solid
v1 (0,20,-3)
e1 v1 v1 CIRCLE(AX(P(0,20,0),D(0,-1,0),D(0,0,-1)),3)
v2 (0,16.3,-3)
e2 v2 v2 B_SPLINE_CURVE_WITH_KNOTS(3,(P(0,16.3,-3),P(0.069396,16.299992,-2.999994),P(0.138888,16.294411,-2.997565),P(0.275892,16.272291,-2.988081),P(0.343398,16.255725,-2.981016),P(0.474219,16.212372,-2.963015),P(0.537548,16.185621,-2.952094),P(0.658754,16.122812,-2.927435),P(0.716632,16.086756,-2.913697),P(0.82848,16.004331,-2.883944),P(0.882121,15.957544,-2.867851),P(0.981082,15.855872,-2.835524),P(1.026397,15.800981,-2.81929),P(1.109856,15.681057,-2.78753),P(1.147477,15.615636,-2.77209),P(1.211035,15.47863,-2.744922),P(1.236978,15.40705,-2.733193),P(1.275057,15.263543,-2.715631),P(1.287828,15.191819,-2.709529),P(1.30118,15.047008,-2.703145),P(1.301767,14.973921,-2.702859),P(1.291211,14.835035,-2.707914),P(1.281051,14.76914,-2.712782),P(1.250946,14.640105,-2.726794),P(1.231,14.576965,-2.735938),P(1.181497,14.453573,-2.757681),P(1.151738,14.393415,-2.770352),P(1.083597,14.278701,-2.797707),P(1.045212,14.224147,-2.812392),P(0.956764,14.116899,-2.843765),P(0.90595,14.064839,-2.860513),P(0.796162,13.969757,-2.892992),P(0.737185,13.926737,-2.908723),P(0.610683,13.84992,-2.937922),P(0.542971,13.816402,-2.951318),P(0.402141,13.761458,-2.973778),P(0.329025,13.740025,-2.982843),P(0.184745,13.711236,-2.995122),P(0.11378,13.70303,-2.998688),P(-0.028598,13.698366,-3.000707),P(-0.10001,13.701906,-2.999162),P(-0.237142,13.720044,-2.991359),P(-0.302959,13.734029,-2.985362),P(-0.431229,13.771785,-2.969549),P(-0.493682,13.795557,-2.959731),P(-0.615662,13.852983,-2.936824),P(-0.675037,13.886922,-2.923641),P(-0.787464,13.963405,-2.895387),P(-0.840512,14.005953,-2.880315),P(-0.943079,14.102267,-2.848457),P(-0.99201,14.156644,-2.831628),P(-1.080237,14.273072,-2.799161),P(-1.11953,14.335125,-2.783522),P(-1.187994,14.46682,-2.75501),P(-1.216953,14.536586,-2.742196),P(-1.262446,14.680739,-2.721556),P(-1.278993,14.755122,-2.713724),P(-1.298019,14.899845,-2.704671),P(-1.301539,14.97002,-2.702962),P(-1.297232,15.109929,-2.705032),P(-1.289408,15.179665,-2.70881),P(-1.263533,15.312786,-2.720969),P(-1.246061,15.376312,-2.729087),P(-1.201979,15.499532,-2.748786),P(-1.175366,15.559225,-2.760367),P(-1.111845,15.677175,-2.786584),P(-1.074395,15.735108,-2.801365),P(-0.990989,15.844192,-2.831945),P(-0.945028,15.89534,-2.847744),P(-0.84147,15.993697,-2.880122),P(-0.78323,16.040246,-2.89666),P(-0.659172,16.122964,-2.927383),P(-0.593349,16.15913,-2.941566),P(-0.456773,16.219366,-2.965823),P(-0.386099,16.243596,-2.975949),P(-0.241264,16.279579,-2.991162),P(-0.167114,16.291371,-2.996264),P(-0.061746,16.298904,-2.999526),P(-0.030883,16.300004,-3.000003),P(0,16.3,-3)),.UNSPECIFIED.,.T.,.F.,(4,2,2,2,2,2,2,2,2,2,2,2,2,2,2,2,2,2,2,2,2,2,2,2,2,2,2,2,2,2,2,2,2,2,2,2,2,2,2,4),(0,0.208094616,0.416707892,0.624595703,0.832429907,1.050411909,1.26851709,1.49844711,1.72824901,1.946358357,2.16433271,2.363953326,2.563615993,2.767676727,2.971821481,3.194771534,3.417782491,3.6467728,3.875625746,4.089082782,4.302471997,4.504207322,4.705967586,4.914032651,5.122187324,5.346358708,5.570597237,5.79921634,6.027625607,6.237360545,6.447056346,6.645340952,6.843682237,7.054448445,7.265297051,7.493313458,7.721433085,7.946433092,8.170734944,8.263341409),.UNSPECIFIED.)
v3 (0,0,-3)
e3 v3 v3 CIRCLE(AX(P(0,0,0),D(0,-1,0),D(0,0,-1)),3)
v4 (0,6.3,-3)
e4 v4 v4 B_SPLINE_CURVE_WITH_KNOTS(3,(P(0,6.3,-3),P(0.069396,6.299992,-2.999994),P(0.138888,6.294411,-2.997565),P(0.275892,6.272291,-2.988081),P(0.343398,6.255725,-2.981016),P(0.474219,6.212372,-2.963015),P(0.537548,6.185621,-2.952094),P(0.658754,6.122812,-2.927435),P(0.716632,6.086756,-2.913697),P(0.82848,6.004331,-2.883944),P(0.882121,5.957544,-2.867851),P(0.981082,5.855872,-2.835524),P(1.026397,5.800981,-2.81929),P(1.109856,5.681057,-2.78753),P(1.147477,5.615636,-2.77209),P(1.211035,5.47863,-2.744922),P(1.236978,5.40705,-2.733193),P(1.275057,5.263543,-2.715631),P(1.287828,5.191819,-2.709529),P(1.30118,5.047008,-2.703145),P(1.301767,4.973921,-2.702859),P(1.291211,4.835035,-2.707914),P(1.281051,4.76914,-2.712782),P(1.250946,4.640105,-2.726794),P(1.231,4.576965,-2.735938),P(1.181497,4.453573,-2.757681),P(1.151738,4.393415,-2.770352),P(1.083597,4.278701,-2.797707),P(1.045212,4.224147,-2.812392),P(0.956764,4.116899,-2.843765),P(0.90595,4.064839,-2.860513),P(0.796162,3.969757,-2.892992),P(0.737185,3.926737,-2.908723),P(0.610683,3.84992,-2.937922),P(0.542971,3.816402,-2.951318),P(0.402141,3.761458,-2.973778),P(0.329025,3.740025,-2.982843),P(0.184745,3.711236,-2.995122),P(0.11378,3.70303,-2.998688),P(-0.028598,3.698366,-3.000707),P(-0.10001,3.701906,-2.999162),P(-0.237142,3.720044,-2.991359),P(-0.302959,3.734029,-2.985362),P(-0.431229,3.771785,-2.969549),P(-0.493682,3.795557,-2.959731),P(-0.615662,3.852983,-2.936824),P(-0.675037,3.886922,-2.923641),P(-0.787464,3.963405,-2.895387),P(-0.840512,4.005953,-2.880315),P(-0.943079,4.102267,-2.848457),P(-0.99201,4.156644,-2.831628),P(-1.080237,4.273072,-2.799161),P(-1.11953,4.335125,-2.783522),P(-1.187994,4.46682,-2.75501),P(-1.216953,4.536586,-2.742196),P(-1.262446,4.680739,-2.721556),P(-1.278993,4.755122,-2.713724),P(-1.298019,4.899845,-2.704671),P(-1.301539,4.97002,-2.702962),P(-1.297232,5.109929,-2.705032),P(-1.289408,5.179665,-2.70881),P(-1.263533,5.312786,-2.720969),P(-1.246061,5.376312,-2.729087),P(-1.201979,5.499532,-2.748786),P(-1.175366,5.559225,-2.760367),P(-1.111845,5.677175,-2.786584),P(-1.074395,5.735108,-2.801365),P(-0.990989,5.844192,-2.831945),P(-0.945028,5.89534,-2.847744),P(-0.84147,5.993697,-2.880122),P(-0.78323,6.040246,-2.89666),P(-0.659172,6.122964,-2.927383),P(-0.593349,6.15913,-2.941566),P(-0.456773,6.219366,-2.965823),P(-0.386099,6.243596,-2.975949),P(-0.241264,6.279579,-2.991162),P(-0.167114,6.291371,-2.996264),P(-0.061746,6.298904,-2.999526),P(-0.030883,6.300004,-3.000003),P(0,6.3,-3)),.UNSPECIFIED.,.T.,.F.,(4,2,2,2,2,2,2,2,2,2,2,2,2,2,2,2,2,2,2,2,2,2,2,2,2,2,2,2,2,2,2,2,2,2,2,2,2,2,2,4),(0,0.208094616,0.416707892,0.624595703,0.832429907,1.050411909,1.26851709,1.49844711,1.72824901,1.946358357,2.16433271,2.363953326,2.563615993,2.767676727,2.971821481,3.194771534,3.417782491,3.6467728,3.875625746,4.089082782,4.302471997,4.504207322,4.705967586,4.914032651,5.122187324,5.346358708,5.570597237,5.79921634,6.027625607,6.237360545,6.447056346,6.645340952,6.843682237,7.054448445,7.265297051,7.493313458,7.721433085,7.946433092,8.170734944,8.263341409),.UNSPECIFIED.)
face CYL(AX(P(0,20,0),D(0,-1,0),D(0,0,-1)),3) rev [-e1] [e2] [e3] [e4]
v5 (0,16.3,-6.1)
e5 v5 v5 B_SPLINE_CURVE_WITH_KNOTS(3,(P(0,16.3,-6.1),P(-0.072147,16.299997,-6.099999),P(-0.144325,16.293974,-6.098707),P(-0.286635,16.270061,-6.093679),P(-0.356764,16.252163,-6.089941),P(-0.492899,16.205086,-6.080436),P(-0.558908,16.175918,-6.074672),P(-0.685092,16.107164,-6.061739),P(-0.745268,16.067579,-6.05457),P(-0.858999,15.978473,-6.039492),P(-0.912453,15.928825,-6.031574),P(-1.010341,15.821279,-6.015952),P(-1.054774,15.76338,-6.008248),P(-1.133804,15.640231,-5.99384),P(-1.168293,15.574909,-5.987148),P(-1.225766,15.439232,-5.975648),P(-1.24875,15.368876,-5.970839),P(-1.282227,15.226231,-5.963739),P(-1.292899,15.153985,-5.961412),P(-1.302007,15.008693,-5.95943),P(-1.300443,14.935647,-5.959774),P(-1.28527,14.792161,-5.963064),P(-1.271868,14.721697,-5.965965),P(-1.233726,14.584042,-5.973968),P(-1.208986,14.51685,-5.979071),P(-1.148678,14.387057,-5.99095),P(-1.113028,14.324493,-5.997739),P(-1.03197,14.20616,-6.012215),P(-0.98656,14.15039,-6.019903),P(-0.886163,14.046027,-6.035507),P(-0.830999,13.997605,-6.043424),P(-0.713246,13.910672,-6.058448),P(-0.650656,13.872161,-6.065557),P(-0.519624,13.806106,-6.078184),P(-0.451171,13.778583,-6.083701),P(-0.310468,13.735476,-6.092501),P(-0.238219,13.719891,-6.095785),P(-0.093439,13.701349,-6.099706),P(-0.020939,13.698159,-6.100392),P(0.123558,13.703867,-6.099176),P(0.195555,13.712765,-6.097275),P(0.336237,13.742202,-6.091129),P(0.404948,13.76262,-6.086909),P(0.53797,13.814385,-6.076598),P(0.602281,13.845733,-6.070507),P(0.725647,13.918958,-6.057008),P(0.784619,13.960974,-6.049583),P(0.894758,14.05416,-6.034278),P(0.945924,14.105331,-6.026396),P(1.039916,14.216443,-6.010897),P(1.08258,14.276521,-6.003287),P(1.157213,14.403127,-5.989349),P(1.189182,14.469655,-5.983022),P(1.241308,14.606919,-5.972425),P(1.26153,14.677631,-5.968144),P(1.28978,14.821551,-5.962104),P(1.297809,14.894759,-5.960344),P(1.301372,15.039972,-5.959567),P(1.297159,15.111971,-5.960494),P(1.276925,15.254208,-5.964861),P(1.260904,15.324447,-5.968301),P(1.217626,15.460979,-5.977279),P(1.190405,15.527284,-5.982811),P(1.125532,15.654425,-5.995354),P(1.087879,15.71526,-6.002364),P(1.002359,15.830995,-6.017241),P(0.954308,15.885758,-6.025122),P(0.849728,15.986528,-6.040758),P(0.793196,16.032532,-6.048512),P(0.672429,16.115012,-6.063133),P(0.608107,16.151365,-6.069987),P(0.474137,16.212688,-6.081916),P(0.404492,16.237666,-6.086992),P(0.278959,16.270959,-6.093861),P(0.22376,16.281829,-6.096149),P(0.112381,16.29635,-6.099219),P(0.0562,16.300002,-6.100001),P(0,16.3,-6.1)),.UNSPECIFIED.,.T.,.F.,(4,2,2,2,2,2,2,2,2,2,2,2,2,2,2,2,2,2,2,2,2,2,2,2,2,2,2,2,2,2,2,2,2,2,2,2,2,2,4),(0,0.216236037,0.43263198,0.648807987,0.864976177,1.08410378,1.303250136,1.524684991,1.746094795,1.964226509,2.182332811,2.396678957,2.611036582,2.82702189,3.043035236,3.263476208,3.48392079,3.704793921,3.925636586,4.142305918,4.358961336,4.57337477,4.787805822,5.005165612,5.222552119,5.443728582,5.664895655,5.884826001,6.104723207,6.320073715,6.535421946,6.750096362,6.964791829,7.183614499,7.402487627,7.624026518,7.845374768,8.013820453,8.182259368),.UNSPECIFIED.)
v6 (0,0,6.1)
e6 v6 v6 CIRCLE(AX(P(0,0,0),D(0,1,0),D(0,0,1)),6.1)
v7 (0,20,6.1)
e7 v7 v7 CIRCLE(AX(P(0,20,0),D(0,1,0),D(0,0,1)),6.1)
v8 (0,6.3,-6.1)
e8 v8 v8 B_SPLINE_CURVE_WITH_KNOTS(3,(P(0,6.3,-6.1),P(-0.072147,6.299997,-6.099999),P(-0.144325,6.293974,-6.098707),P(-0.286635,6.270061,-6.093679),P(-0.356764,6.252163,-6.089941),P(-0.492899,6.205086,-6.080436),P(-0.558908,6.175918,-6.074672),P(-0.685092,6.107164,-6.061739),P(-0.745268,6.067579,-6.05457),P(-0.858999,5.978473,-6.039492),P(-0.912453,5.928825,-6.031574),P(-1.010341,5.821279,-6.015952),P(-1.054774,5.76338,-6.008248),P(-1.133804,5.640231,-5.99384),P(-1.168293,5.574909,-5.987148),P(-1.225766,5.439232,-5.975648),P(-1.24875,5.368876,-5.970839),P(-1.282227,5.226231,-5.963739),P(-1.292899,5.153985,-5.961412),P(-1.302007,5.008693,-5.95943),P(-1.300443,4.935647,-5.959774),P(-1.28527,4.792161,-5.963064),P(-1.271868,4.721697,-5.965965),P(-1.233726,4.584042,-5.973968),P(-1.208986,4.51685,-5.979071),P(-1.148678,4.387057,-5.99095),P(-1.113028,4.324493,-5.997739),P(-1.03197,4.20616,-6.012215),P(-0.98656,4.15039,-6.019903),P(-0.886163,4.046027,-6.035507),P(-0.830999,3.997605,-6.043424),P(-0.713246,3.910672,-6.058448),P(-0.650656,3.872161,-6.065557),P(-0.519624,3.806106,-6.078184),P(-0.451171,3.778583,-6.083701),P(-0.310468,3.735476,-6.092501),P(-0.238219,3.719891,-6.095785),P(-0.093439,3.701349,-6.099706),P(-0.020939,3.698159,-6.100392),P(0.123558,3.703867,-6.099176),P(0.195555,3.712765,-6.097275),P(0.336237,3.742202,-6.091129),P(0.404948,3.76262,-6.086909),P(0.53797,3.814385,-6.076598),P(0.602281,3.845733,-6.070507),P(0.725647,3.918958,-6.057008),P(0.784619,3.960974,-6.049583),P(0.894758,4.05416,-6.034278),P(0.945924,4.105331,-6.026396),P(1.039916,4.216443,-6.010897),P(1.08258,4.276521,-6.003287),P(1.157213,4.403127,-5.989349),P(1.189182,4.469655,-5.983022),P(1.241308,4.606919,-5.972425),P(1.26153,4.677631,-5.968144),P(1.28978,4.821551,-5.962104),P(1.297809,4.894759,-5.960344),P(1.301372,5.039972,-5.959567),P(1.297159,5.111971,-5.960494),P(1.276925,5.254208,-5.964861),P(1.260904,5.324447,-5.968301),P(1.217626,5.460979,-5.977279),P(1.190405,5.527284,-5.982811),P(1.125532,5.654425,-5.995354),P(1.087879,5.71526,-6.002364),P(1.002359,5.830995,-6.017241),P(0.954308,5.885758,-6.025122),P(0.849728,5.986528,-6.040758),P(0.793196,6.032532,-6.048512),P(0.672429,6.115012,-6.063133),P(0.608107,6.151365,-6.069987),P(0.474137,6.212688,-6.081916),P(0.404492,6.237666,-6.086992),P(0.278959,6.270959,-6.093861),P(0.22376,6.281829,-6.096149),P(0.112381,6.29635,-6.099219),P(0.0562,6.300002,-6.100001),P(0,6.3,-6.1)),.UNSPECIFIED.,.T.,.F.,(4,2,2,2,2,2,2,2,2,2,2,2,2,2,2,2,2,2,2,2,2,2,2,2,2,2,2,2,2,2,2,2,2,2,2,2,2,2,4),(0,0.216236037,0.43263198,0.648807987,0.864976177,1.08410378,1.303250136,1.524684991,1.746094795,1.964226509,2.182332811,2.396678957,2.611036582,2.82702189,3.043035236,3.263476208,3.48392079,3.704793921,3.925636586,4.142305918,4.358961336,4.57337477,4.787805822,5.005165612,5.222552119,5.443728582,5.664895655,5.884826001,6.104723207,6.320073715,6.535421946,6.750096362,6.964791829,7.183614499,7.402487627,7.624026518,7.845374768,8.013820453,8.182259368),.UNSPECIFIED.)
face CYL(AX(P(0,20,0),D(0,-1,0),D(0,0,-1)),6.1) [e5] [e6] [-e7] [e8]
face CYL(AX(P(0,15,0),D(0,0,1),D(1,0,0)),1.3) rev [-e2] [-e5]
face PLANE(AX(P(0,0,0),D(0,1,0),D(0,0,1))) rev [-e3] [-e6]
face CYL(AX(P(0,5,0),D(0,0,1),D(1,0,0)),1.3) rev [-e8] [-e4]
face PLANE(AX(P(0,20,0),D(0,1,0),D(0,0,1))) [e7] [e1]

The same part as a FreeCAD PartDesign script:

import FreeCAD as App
import Part
import Sketcher

V = App.Vector


def add_polygon(sketch, points):
    """Adds a closed chain of lines whose ends are joined by coincident constraints."""
    first, n = sketch.GeometryCount, len(points)
    for a, b in zip(points, points[1:] + points[:1]):
        sketch.addGeometry(Part.LineSegment(App.Vector(*a, 0), App.Vector(*b, 0)), False)
    for i in range(n):
        sketch.addConstraint(Sketcher.Constraint("Coincident", first + i, 2, first + (i + 1) % n, 1))

doc = App.newDocument("Part")
body = doc.addObject("PartDesign::Body", "Body")

sketch1 = body.newObject("Sketcher::SketchObject", "Sketch")
sketch1.AttachmentSupport = (doc.getObject("XZ_Plane"), [""])
sketch1.MapMode = "FlatFace"
sketch1.addGeometry(Part.Circle(V(0, 0, 0), V(0, 0, 1), 6), False)
sketch1.addConstraint([
    Sketcher.Constraint("Coincident", 0, 3, -1, 1),
    Sketcher.Constraint("Diameter", 0, 12.2),
])
pad1 = body.newObject("PartDesign::Pad", "Pad")
pad1.Profile = sketch1
pad1.Length = 20
pad1.Reversed = True

sketch2 = body.newObject("Sketcher::SketchObject", "Sketch001")
sketch2.AttachmentSupport = (doc.getObject("XZ_Plane"), [""])
sketch2.MapMode = "FlatFace"
sketch2.addGeometry(Part.Circle(V(0, 0, 0), V(0, 0, 1), 3), False)
sketch2.addConstraint([
    Sketcher.Constraint("Coincident", 0, 3, -1, 1),
    Sketcher.Constraint("Diameter", 0, 6.0),
])
pocket1 = body.newObject("PartDesign::Pocket", "Pocket")
pocket1.Profile = sketch2
pocket1.Type = "ThroughAll"

sketch3 = body.newObject("Sketcher::SketchObject", "Sketch002")
sketch3.AttachmentSupport = (doc.getObject("YZ_Plane"), [""])
sketch3.MapMode = "FlatFace"
add_polygon(sketch3, [(15, -6.1), (15, 0), (13.7, 0), (13.7, -6.1)])
sketch3.addGeometry(Part.LineSegment(V(15, 0, 0), V(15, -6.1, 0)), True)
sketch3.addConstraint([
    Sketcher.Constraint("Vertical", 0),
    Sketcher.Constraint("Horizontal", 1),
    Sketcher.Constraint("Vertical", 2),
    Sketcher.Constraint("Horizontal", 3),
    Sketcher.Constraint("Vertical", 4),
    Sketcher.Constraint("Coincident", 4, 1, 0, 2),
    Sketcher.Constraint("PointOnObject", 0, 2, -1),
    Sketcher.Constraint("Horizontal", 2, 2, 4, 2),
    Sketcher.Constraint("DistanceX", 1, 2, 1, 1, 1.3),
    Sketcher.Constraint("DistanceY", 0, 1, 0, 2, 6.1),
    Sketcher.Constraint("DistanceX", -1, 1, 0, 2, 15.0),
])
groove = body.newObject("PartDesign::Groove", "Groove")
groove.Profile = sketch3
groove.ReferenceAxis = (sketch3, ["Axis0"])
groove.Angle = 360
doc.recompute()

linearpattern = body.newObject("PartDesign::LinearPattern", "LinearPattern")
linearpattern.Originals = [groove]
linearpattern.Direction = (doc.getObject("Y_Axis"), [""])
linearpattern.Mode = "offset"
linearpattern.Offset = 10
linearpattern.Occurrences = 2
linearpattern.Reversed = True
body.Tip = linearpattern

doc.recompute()
